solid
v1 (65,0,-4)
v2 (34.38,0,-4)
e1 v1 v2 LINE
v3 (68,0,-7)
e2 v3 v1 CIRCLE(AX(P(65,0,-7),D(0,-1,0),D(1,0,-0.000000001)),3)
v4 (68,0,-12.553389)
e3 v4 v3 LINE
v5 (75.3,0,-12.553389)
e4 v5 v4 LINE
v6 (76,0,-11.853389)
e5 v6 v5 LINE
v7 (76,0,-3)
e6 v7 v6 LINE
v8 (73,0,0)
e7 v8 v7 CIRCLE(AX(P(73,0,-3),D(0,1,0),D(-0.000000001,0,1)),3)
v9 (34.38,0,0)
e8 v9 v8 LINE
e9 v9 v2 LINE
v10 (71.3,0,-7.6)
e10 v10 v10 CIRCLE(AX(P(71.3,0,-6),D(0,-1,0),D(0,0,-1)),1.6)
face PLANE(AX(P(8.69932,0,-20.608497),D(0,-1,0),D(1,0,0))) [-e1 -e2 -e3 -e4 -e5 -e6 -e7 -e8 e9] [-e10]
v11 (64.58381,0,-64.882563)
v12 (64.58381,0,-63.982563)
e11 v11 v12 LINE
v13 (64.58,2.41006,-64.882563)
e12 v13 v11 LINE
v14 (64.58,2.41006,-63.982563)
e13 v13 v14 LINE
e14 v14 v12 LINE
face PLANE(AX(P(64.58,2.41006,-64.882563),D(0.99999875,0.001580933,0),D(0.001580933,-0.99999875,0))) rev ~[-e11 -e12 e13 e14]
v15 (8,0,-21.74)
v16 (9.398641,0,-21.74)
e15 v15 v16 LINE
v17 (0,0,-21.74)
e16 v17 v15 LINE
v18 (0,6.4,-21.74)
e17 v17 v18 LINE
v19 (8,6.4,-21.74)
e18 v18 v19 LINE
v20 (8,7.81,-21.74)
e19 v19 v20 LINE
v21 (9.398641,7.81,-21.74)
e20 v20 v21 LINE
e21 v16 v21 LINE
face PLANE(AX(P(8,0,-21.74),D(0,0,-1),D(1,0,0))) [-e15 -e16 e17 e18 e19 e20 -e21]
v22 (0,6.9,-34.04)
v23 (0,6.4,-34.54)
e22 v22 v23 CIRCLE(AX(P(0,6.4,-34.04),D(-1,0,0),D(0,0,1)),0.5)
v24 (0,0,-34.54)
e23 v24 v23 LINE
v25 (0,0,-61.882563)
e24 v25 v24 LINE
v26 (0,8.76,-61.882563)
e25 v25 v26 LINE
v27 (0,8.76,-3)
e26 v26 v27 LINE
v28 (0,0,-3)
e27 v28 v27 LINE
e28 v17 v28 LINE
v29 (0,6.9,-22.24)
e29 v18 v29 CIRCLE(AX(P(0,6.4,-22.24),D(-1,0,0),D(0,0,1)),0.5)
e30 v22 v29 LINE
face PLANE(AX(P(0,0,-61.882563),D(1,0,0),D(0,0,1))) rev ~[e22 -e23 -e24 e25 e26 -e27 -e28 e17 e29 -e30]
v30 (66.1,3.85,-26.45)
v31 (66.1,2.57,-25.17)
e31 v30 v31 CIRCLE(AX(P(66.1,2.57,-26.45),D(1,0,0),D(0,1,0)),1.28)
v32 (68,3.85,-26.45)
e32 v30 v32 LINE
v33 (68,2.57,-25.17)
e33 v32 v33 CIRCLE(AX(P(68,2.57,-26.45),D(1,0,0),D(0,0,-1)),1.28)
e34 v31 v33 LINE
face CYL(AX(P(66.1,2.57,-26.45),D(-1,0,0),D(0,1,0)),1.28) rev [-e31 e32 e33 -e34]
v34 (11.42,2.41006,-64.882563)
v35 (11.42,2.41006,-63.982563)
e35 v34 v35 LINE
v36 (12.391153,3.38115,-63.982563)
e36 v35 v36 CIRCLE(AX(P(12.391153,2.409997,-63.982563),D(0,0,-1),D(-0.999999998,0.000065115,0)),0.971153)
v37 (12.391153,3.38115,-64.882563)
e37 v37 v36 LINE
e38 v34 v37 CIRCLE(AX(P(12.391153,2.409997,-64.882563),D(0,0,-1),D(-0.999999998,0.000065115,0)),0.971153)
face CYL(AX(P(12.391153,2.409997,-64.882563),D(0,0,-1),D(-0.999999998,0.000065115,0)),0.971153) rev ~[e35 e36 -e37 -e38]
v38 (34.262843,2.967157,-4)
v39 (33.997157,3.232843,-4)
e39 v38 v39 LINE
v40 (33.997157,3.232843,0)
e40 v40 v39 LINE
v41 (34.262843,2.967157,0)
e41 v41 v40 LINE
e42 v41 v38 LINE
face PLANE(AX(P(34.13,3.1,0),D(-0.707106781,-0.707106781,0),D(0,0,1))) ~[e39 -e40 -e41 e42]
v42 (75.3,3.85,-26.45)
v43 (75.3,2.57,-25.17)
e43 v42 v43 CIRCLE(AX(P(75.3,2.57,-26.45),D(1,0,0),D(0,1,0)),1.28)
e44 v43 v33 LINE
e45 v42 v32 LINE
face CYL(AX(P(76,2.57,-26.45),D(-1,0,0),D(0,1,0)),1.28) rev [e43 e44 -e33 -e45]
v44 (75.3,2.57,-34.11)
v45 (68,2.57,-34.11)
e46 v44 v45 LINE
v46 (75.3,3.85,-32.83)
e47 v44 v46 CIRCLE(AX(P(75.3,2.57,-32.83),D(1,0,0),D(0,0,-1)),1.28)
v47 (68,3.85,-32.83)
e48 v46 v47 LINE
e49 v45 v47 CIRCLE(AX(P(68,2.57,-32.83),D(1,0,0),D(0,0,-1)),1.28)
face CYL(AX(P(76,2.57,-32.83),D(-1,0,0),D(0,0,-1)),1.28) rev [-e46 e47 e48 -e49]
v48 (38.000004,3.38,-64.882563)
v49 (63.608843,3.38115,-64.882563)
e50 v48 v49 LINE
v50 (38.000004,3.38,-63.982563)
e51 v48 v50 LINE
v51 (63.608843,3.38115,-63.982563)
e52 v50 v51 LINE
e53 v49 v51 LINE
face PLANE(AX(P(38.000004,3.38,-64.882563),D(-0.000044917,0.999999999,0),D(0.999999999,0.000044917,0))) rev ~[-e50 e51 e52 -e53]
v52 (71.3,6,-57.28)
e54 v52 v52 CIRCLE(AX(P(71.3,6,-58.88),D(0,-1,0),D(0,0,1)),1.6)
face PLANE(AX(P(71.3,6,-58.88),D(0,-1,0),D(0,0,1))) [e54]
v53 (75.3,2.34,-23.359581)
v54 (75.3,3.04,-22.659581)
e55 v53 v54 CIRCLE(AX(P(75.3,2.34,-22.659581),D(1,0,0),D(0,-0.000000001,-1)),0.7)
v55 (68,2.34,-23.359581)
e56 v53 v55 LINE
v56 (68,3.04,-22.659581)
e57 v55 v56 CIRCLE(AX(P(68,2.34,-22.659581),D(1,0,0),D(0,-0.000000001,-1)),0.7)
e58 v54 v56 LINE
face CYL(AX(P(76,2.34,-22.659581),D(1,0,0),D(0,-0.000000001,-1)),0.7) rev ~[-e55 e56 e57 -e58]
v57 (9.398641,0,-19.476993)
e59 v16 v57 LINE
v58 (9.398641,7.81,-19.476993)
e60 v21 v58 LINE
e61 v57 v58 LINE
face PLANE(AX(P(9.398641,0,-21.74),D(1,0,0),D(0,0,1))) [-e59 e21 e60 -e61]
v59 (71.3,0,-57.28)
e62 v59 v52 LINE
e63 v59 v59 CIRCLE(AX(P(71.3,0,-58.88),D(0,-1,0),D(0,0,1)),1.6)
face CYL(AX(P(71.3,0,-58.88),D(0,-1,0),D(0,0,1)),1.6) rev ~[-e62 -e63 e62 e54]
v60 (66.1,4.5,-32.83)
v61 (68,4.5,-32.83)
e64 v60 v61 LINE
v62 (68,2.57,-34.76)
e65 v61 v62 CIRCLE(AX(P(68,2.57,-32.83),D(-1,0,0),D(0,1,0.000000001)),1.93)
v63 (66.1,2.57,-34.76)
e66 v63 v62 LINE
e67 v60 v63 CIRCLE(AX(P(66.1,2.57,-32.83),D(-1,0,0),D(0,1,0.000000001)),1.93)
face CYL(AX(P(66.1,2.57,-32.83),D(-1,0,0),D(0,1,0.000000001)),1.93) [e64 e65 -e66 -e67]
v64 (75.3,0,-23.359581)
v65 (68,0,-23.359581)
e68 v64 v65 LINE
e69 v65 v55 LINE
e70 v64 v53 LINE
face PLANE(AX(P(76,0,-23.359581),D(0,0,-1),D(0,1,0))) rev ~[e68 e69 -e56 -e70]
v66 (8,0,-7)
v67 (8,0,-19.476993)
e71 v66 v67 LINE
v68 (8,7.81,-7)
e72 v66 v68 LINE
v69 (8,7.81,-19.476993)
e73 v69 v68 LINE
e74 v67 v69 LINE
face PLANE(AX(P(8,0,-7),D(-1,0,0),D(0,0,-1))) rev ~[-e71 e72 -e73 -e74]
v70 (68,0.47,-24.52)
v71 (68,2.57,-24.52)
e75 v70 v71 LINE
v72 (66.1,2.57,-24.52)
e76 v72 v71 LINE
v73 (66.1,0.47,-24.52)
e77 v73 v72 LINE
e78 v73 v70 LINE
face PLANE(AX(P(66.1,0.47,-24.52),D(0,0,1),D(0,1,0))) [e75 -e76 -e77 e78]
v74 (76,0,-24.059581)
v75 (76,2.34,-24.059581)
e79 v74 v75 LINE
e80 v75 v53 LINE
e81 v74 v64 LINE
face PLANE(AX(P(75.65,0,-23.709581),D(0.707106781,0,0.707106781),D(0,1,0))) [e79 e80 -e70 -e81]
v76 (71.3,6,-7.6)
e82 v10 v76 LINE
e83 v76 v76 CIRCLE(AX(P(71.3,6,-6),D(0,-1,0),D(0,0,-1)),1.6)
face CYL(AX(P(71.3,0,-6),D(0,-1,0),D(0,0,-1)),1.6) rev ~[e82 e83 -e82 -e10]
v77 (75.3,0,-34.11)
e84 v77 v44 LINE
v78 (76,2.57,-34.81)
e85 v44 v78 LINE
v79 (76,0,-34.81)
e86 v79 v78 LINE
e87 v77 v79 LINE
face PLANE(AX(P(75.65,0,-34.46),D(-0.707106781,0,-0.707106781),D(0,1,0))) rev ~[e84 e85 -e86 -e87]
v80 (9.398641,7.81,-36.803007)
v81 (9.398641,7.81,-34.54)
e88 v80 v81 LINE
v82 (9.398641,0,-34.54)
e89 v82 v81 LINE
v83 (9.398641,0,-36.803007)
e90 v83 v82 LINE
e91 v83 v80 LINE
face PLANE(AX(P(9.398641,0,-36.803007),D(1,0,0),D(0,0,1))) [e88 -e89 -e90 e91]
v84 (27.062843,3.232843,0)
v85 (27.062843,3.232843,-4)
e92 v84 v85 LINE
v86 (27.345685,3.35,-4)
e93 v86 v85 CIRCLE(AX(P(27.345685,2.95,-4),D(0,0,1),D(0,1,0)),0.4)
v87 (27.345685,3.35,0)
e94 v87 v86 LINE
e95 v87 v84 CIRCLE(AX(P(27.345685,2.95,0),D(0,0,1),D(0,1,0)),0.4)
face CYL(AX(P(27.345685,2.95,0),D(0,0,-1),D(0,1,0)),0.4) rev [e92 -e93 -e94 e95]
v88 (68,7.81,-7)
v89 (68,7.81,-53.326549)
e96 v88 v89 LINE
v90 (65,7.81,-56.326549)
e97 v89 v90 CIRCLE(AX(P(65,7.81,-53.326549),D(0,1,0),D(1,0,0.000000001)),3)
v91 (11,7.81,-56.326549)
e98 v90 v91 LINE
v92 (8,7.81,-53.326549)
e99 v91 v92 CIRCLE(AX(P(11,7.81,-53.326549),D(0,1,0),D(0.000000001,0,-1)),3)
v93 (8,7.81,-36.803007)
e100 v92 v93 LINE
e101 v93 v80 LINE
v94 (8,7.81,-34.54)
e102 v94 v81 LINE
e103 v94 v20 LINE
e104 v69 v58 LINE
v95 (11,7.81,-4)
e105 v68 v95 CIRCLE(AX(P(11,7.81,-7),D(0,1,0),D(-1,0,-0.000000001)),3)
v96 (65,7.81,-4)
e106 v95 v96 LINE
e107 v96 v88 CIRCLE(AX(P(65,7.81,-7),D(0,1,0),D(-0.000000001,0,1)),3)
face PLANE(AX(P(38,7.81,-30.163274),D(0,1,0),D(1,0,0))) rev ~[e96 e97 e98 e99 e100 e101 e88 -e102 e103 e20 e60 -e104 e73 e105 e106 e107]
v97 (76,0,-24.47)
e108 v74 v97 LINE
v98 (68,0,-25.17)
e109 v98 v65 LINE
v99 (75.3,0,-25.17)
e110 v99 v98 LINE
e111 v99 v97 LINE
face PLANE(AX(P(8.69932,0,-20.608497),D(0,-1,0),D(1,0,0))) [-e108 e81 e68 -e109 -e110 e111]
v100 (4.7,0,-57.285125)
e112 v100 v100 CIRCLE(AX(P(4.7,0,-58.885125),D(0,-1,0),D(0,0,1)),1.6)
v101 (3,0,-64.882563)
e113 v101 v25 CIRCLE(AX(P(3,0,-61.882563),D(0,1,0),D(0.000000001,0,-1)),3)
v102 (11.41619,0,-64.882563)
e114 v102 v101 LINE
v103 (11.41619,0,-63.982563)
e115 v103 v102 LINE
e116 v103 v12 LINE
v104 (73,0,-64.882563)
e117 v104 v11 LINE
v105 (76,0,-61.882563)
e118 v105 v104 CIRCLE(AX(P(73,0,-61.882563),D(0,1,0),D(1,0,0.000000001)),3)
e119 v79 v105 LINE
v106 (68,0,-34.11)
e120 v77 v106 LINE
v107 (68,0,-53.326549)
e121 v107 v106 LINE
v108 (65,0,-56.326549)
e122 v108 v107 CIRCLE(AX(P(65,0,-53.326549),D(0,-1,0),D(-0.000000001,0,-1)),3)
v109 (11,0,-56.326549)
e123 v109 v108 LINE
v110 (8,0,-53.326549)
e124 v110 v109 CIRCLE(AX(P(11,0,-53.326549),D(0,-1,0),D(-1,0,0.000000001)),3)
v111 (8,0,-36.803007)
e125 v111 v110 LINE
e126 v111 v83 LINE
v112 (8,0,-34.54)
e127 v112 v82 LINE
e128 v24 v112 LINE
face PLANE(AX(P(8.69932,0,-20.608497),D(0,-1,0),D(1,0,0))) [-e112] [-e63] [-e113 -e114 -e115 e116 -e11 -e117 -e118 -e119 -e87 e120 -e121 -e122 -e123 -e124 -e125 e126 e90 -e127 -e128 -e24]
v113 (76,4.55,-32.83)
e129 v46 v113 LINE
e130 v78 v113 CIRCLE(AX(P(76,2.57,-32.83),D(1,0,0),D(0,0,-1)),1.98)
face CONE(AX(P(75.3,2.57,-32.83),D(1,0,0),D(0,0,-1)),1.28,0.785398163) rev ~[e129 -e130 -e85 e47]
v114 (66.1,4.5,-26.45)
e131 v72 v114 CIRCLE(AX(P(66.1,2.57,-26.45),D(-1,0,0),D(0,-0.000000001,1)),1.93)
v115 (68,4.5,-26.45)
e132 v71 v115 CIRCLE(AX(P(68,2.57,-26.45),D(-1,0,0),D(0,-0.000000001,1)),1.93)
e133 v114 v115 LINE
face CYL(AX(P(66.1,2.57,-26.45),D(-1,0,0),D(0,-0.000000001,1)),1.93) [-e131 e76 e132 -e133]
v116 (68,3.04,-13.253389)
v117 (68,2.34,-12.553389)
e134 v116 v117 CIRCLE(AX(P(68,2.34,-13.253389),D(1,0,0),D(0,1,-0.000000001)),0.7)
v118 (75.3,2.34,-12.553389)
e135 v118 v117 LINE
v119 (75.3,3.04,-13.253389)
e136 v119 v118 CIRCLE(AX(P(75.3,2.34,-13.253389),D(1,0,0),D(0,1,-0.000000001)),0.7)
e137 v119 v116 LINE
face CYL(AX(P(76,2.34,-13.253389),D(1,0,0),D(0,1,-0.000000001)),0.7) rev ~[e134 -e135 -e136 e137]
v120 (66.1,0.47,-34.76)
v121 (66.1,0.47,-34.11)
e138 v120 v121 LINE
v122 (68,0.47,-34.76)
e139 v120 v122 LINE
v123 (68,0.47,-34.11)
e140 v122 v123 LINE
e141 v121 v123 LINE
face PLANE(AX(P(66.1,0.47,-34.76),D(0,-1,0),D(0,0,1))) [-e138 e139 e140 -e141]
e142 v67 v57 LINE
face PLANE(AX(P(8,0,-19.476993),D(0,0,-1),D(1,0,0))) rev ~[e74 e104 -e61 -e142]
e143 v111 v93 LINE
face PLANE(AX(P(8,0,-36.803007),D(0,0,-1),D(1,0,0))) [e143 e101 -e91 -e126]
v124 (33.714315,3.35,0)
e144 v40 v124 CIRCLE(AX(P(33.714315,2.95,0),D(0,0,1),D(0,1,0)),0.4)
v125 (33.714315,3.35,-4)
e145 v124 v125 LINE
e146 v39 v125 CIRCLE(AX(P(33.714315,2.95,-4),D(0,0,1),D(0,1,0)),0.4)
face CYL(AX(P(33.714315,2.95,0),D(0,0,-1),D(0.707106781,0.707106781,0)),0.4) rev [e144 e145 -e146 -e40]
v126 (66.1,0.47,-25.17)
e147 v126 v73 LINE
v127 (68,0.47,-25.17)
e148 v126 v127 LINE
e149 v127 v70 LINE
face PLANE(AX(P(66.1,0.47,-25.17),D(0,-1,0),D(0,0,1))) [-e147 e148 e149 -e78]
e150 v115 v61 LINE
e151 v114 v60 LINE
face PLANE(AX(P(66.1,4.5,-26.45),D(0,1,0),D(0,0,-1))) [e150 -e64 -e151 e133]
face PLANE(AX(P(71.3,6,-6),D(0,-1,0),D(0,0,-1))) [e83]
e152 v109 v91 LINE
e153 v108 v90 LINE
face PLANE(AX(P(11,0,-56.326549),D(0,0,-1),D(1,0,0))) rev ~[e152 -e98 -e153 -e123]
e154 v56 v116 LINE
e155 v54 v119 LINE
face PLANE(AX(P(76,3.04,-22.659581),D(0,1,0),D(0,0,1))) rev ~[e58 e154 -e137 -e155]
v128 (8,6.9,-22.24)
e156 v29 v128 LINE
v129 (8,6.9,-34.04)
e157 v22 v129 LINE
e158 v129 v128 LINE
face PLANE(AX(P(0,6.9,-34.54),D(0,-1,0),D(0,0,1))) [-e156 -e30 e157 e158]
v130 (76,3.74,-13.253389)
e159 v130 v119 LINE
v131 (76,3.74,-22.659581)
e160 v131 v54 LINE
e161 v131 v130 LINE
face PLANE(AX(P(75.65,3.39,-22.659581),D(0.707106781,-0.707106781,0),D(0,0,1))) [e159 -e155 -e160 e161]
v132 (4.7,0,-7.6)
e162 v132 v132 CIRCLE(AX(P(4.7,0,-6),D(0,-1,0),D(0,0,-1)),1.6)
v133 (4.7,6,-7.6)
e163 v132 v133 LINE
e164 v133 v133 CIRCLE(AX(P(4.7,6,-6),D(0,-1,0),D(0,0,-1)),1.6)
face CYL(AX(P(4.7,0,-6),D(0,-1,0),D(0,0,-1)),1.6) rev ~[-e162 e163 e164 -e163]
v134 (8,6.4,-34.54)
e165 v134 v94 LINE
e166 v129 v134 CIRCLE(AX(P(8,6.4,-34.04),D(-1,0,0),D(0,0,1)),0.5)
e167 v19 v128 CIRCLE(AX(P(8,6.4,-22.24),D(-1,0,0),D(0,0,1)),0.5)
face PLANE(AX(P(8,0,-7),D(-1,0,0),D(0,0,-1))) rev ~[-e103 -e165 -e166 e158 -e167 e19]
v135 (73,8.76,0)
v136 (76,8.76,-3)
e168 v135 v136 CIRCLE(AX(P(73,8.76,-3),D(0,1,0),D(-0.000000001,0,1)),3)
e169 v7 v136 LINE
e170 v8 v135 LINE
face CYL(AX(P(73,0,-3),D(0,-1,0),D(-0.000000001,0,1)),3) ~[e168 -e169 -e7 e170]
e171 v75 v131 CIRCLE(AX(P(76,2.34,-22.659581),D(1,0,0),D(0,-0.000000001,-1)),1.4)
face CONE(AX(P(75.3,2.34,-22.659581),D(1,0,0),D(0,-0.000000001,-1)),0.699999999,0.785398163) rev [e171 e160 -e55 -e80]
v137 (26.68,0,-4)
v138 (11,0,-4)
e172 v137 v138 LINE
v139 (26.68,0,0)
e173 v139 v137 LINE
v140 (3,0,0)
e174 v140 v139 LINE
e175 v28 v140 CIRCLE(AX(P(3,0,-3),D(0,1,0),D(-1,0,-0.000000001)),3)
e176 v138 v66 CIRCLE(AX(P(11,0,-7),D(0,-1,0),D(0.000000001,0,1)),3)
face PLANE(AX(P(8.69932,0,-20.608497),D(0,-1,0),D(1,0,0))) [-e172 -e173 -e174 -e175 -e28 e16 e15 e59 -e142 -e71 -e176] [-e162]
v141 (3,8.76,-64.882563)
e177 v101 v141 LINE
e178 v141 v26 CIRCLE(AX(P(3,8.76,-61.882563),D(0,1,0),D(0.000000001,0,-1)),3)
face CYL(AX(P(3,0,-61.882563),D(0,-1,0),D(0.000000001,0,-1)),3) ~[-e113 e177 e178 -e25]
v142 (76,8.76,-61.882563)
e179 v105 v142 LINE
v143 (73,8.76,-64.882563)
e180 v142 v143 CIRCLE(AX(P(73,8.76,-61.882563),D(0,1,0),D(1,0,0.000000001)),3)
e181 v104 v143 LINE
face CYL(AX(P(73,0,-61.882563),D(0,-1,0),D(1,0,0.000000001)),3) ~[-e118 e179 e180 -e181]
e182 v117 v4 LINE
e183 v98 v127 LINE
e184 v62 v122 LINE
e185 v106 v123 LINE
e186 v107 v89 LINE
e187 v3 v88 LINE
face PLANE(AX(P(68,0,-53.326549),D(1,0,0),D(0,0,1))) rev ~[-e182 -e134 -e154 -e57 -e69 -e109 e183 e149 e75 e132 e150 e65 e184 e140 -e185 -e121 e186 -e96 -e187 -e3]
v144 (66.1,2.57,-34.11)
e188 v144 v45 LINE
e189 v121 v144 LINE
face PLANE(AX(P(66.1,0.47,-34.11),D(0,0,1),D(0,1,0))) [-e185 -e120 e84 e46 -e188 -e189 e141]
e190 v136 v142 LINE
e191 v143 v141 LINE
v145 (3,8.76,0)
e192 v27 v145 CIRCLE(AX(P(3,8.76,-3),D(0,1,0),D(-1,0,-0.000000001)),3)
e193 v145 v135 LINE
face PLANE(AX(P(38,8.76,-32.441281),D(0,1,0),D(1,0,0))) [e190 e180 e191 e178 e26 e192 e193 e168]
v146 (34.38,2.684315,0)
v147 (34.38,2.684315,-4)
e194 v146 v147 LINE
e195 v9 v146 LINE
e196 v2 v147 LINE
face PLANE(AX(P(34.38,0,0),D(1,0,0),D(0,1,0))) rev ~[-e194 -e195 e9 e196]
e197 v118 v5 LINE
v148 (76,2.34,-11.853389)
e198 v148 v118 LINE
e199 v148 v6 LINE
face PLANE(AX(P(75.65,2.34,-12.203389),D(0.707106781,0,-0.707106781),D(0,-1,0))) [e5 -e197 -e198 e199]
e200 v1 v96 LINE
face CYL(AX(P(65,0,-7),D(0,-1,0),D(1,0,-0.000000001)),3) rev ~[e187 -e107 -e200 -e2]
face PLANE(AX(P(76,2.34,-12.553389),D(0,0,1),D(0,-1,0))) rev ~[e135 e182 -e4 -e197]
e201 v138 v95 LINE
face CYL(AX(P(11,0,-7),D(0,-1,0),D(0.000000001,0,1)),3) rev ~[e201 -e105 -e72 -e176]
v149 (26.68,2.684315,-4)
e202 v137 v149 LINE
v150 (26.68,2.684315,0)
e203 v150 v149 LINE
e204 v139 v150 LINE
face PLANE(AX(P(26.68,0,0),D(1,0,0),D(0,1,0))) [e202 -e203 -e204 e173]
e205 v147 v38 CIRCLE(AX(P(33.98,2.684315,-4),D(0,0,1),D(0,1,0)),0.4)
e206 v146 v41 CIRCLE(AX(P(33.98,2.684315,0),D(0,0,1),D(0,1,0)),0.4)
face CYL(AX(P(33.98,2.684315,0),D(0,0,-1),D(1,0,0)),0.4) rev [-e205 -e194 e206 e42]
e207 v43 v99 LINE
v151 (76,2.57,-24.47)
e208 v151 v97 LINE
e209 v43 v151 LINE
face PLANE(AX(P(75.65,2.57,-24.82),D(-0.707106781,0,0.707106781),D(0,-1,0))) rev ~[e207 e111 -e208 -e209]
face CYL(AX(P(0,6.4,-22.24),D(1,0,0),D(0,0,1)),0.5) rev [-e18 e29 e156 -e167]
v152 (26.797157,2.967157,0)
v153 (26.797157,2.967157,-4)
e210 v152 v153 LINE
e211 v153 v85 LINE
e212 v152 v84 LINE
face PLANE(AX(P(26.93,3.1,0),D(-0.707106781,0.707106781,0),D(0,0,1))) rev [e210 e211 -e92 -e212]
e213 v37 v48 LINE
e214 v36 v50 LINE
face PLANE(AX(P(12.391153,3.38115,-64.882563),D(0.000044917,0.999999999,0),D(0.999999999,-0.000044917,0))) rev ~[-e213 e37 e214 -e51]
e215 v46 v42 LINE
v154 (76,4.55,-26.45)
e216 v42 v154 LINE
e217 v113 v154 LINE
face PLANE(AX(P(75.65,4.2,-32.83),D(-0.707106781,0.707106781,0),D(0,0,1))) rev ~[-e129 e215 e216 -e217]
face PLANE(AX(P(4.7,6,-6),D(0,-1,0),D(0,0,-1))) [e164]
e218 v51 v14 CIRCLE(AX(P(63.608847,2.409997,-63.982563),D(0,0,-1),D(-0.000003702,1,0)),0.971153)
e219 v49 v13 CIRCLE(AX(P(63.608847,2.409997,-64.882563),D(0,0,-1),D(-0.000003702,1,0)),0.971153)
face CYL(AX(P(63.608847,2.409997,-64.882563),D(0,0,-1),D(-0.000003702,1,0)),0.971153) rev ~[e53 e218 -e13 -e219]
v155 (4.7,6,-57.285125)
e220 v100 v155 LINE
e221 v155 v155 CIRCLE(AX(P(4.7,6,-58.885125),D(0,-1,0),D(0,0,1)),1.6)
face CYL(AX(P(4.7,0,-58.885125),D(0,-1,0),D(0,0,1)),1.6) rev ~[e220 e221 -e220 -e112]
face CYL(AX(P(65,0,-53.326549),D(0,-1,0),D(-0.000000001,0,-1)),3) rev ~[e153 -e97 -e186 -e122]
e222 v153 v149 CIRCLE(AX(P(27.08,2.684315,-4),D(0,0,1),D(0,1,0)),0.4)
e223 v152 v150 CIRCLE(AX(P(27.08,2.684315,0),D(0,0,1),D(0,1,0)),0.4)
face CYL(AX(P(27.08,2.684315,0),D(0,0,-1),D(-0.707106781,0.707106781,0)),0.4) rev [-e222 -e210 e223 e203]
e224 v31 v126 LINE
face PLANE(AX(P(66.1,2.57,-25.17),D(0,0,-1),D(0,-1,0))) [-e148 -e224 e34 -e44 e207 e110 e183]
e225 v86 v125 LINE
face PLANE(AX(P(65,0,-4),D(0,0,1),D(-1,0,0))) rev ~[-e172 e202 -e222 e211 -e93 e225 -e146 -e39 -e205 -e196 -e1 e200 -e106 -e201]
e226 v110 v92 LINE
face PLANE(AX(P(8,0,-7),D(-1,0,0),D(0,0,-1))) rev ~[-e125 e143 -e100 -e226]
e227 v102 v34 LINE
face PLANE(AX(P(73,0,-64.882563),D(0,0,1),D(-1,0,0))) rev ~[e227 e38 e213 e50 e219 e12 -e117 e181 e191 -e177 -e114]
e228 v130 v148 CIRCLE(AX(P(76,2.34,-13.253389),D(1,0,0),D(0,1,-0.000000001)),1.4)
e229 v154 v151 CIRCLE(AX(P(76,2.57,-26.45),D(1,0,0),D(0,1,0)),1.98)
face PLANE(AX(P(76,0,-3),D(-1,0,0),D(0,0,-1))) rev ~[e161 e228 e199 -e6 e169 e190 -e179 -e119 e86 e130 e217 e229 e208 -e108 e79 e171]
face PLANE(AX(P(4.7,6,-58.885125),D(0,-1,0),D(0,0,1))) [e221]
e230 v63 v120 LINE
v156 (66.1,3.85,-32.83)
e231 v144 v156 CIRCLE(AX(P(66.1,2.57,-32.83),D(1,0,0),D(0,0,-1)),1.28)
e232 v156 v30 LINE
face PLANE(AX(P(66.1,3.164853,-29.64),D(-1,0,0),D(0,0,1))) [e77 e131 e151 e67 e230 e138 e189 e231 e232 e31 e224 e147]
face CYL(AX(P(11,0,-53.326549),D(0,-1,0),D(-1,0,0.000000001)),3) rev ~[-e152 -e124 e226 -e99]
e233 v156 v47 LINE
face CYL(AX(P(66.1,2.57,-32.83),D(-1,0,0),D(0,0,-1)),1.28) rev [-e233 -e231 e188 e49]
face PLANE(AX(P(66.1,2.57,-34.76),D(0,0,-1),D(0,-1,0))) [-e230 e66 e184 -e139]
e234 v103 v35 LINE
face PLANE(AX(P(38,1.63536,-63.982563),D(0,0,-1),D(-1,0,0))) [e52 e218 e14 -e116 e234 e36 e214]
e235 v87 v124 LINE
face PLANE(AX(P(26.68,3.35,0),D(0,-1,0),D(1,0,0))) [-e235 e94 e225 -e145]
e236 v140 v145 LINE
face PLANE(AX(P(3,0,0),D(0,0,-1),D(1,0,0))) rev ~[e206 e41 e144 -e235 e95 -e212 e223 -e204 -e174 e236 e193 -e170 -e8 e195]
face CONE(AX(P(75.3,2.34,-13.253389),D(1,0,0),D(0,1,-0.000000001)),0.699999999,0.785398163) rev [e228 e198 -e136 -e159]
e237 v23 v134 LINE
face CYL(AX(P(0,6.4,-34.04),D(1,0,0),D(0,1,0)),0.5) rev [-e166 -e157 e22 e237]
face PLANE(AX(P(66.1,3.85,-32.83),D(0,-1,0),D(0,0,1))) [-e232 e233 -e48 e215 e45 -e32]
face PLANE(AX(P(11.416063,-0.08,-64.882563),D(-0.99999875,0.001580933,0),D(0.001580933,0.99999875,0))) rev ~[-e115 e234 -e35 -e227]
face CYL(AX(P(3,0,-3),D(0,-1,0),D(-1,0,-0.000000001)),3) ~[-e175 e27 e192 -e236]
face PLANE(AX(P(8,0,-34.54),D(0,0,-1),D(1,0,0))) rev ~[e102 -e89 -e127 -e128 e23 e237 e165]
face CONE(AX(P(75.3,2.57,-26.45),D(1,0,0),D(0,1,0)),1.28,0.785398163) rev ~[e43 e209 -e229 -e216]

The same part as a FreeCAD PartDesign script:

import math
import FreeCAD as App
import Part
import Sketcher
Q = App.Units.Quantity


def edges_at(feature, points):
    """Names of the edges that pass closest to the given points."""
    edges = feature.Shape.Edges
    near = lambda p: min(range(len(edges)), key=lambda i: edges[i].distToShape(Part.Vertex(*p))[0])
    return sorted({f"Edge{near(p) + 1}" for p in points})


def add_polygon(sketch, points):
    """Adds a closed chain of lines whose ends are joined by coincident constraints."""
    first, n = sketch.GeometryCount, len(points)
    for a, b in zip(points, points[1:] + points[:1]):
        sketch.addGeometry(Part.LineSegment(App.Vector(*a, 0), App.Vector(*b, 0)), False)
    for i in range(n):
        sketch.addConstraint(Sketcher.Constraint("Coincident", first + i, 2, first + (i + 1) % n, 1))

doc = App.newDocument("Part")
body = doc.addObject("PartDesign::Body", "Body")

sketch1 = body.newObject("Sketcher::SketchObject", "Sketch")
sketch1.AttachmentSupport = (doc.getObject("XZ_Plane"), [""])
sketch1.MapMode = "FlatFace"
sketch1.addGeometry([
    Part.ArcOfCircle(Part.Circle(App.Vector(3, -3, 0), App.Vector(0, 0, 1), 3), math.radians(90), math.radians(180)),
    Part.LineSegment(App.Vector(3, 0, 0), App.Vector(73, 0, 0)),
    Part.ArcOfCircle(Part.Circle(App.Vector(73, -3, 0), App.Vector(0, 0, 1), 3), math.radians(0), math.radians(90)),
    Part.LineSegment(App.Vector(76, -3, 0), App.Vector(76, -61.9, 0)),
    Part.ArcOfCircle(Part.Circle(App.Vector(73, -61.9, 0), App.Vector(0, 0, 1), 3), math.radians(-90), math.radians(0)),
    Part.LineSegment(App.Vector(73, -64.9, 0), App.Vector(3, -64.9, 0)),
    Part.ArcOfCircle(Part.Circle(App.Vector(3, -61.9, 0), App.Vector(0, 0, 1), 3), math.radians(180), math.radians(270)),
    Part.LineSegment(App.Vector(0, -61.9, 0), App.Vector(0, -3, 0)),
    Part.ArcOfCircle(Part.Circle(App.Vector(65, -7, 0), App.Vector(0, 0, 1), 3), math.radians(0), math.radians(90)),
    Part.LineSegment(App.Vector(65, -4, 0), App.Vector(11, -4, 0)),
    Part.ArcOfCircle(Part.Circle(App.Vector(11, -7, 0), App.Vector(0, 0, 1), 3), math.radians(90), math.radians(180)),
    Part.LineSegment(App.Vector(8, -7, 0), App.Vector(8, -53.3, 0)),
    Part.ArcOfCircle(Part.Circle(App.Vector(11, -53.3, 0), App.Vector(0, 0, 1), 3), math.radians(180), math.radians(270)),
    Part.LineSegment(App.Vector(11, -56.3, 0), App.Vector(65, -56.3, 0)),
    Part.ArcOfCircle(Part.Circle(App.Vector(65, -53.3, 0), App.Vector(0, 0, 1), 3), math.radians(-90), math.radians(0)),
    Part.LineSegment(App.Vector(68, -53.3, 0), App.Vector(68, -7, 0)),
], False)
sketch1.addConstraint([
    Sketcher.Constraint("Tangent", 0, 1, 1, 1),
    Sketcher.Constraint("Tangent", 1, 2, 2, 2),
    Sketcher.Constraint("Tangent", 2, 1, 3, 1),
    Sketcher.Constraint("Tangent", 3, 2, 4, 2),
    Sketcher.Constraint("Tangent", 4, 1, 5, 1),
    Sketcher.Constraint("Tangent", 5, 2, 6, 2),
    Sketcher.Constraint("Tangent", 6, 1, 7, 1),
    Sketcher.Constraint("Tangent", 7, 2, 0, 2),
    Sketcher.Constraint("Tangent", 8, 2, 9, 1),
    Sketcher.Constraint("Tangent", 9, 2, 10, 1),
    Sketcher.Constraint("Tangent", 10, 2, 11, 1),
    Sketcher.Constraint("Tangent", 11, 2, 12, 1),
    Sketcher.Constraint("Tangent", 12, 2, 13, 1),
    Sketcher.Constraint("Tangent", 13, 2, 14, 1),
    Sketcher.Constraint("Tangent", 14, 2, 15, 1),
    Sketcher.Constraint("Tangent", 15, 2, 8, 1),
    Sketcher.Constraint("Horizontal", 1),
    Sketcher.Constraint("Vertical", 3),
    Sketcher.Constraint("Horizontal", 5),
    Sketcher.Constraint("Vertical", 7),
    Sketcher.Constraint("Horizontal", 9),
    Sketcher.Constraint("Vertical", 11),
    Sketcher.Constraint("Horizontal", 13),
    Sketcher.Constraint("Vertical", 15),
    Sketcher.Constraint("Equal", 0, 2),
    Sketcher.Constraint("Equal", 2, 4),
    Sketcher.Constraint("Equal", 4, 6),
    Sketcher.Constraint("Equal", 6, 8),
    Sketcher.Constraint("Equal", 8, 10),
    Sketcher.Constraint("Equal", 10, 12),
    Sketcher.Constraint("Equal", 12, 14),
    Sketcher.Constraint("PointOnObject", 0, 1, -1),
    Sketcher.Constraint("PointOnObject", 6, 1, -2),
    Sketcher.Constraint("Radius", 0, Q("3 mm")),
    Sketcher.Constraint("DistanceX", 1, 1, 1, 2, Q("70 mm")),
    Sketcher.Constraint("DistanceX", 9, 2, 9, 1, Q("54 mm")),
    Sketcher.Constraint("DistanceX", -1, 1, 8, 3, Q("65 mm")),
    Sketcher.Constraint("DistanceY", 8, 3, -1, 1, Q("7 mm")),
    Sketcher.Constraint("DistanceY", 11, 2, 11, 1, Q("46.326549 mm")),
    Sketcher.Constraint("DistanceY", 3, 2, 3, 1, Q("58.882563 mm")),
])
pad1 = body.newObject("PartDesign::Pad", "Pad")
pad1.Profile = sketch1
pad1.Length = 8.76
pad1.Reversed = True

sketch2 = body.newObject("Sketcher::SketchObject", "Sketch001")
sketch2.AttachmentSupport = (doc.getObject("XZ_Plane"), [""])
sketch2.MapMode = "FlatFace"
sketch2.AttachmentOffset = App.Placement(App.Vector(0, 0, -7.81), App.Rotation())
sketch2.addGeometry([
    Part.ArcOfCircle(Part.Circle(App.Vector(11, -7, 0), App.Vector(0, 0, 1), 3), math.radians(90), math.radians(180)),
    Part.LineSegment(App.Vector(11, -4, 0), App.Vector(65, -4, 0)),
    Part.ArcOfCircle(Part.Circle(App.Vector(65, -7, 0), App.Vector(0, 0, 1), 3), math.radians(0), math.radians(90)),
    Part.LineSegment(App.Vector(68, -7, 0), App.Vector(68, -53.3, 0)),
    Part.ArcOfCircle(Part.Circle(App.Vector(65, -53.3, 0), App.Vector(0, 0, 1), 3), math.radians(-90), math.radians(0)),
    Part.LineSegment(App.Vector(65, -56.3, 0), App.Vector(11, -56.3, 0)),
    Part.ArcOfCircle(Part.Circle(App.Vector(11, -53.3, 0), App.Vector(0, 0, 1), 3), math.radians(180), math.radians(270)),
    Part.LineSegment(App.Vector(8, -53.3, 0), App.Vector(8, -7, 0)),
], False)
sketch2.addConstraint([
    Sketcher.Constraint("Tangent", 0, 1, 1, 1),
    Sketcher.Constraint("Tangent", 1, 2, 2, 2),
    Sketcher.Constraint("Tangent", 2, 1, 3, 1),
    Sketcher.Constraint("Tangent", 3, 2, 4, 2),
    Sketcher.Constraint("Tangent", 4, 1, 5, 1),
    Sketcher.Constraint("Tangent", 5, 2, 6, 2),
    Sketcher.Constraint("Tangent", 6, 1, 7, 1),
    Sketcher.Constraint("Tangent", 7, 2, 0, 2),
    Sketcher.Constraint("Horizontal", 1),
    Sketcher.Constraint("Vertical", 3),
    Sketcher.Constraint("Horizontal", 5),
    Sketcher.Constraint("Vertical", 7),
    Sketcher.Constraint("Equal", 0, 2),
    Sketcher.Constraint("Equal", 2, 4),
    Sketcher.Constraint("Equal", 4, 6),
    Sketcher.Constraint("Radius", 0, Q("3 mm")),
    Sketcher.Constraint("DistanceX", 1, 1, 1, 2, Q("54 mm")),
    Sketcher.Constraint("DistanceX", -1, 1, 0, 3, Q("11 mm")),
    Sketcher.Constraint("DistanceY", 0, 3, -1, 1, Q("7 mm")),
    Sketcher.Constraint("DistanceY", 3, 2, 3, 1, Q("46.326549 mm")),
])
pad2 = body.newObject("PartDesign::Pad", "Pad001")
pad2.Profile = sketch2
pad2.Length = 0.95
pad2.Reversed = True

sketch3 = body.newObject("Sketcher::SketchObject", "Sketch002")
sketch3.AttachmentSupport = (doc.getObject("YZ_Plane"), [""])
sketch3.MapMode = "FlatFace"
add_polygon(sketch3, [(7, -35), (0, -35), (0, -22), (7, -22)])
sketch3.addConstraint([
    Sketcher.Constraint("Horizontal", 0),
    Sketcher.Constraint("Vertical", 1),
    Sketcher.Constraint("Horizontal", 2),
    Sketcher.Constraint("Vertical", 3),
    Sketcher.Constraint("PointOnObject", 0, 2, -2),
    Sketcher.Constraint("DistanceX", 0, 2, 0, 1, Q("6.9 mm")),
    Sketcher.Constraint("DistanceY", 1, 1, 1, 2, Q("12.8 mm")),
    Sketcher.Constraint("DistanceY", 0, 2, -1, 1, Q("34.54 mm")),
])
pocket1 = body.newObject("PartDesign::Pocket", "Pocket")
pocket1.Profile = sketch3
pocket1.Length = 8
pocket1.Reversed = True

sketch4 = body.newObject("Sketcher::SketchObject", "Sketch003")
sketch4.AttachmentSupport = (doc.getObject("XZ_Plane"), [""])
sketch4.MapMode = "FlatFace"
add_polygon(sketch4, [(8, -19.5), (8, -21.7), (9.4, -21.7), (9.4, -19.5)])
add_polygon(sketch4, [(8, -34.5), (8, -36.8), (9.4, -36.8), (9.4, -34.5)])
sketch4.addConstraint([
    Sketcher.Constraint("Vertical", 0),
    Sketcher.Constraint("Horizontal", 1),
    Sketcher.Constraint("Vertical", 2),
    Sketcher.Constraint("Horizontal", 3),
    Sketcher.Constraint("Vertical", 4),
    Sketcher.Constraint("Horizontal", 5),
    Sketcher.Constraint("Vertical", 6),
    Sketcher.Constraint("Horizontal", 7),
    Sketcher.Constraint("Vertical", 3, 2, 4, 2),
    Sketcher.Constraint("Vertical", 2, 2, 5, 2),
    Sketcher.Constraint("Equal", 2, 4),
    Sketcher.Constraint("DistanceX", -1, 1, 0, 2, Q("8 mm")),
    Sketcher.Constraint("DistanceY", 6, 2, 1, 2, Q("12.8 mm")),
    Sketcher.Constraint("DistanceY", 0, 2, -1, 1, Q("21.74 mm")),
    Sketcher.Constraint("DistanceX", 1, 1, 1, 2, Q("1.398641 mm")),
    Sketcher.Constraint("DistanceY", 0, 2, 0, 1, Q("2.263007 mm")),
])
pad3 = body.newObject("PartDesign::Pad", "Pad002")
pad3.Profile = sketch4
pad3.Length = 7.81
pad3.Reversed = True

sketch5 = body.newObject("Sketcher::SketchObject", "Sketch004")
sketch5.AttachmentSupport = (doc.getObject("YZ_Plane"), [""])
sketch5.MapMode = "FlatFace"
sketch5.AttachmentOffset = App.Placement(App.Vector(0, 0, 76), App.Rotation())
sketch5.addGeometry([
    Part.LineSegment(App.Vector(2.3, -12.6, 0), App.Vector(0, -12.6, 0)),
    Part.LineSegment(App.Vector(0, -12.6, 0), App.Vector(0, -23.4, 0)),
    Part.LineSegment(App.Vector(0, -23.4, 0), App.Vector(2.3, -23.4, 0)),
    Part.ArcOfCircle(Part.Circle(App.Vector(2.3, -22.7, 0), App.Vector(0, 0, 1), 0.7), math.radians(-90), math.radians(0)),
    Part.LineSegment(App.Vector(3, -22.7, 0), App.Vector(3, -13.3, 0)),
    Part.ArcOfCircle(Part.Circle(App.Vector(2.3, -13.3, 0), App.Vector(0, 0, 1), 0.7), math.radians(0), math.radians(90)),
], False)
sketch5.addConstraint([
    Sketcher.Constraint("Coincident", 0, 2, 1, 1),
    Sketcher.Constraint("Coincident", 1, 2, 2, 1),
    Sketcher.Constraint("Tangent", 2, 2, 3, 1),
    Sketcher.Constraint("Tangent", 3, 2, 4, 1),
    Sketcher.Constraint("Tangent", 4, 2, 5, 1),
    Sketcher.Constraint("Tangent", 5, 2, 0, 1),
    Sketcher.Constraint("Horizontal", 0),
    Sketcher.Constraint("Vertical", 1),
    Sketcher.Constraint("Horizontal", 2),
    Sketcher.Constraint("Vertical", 4),
    Sketcher.Constraint("Equal", 3, 5),
    Sketcher.Constraint("PointOnObject", 0, 2, -2),
    Sketcher.Constraint("Radius", 3, Q("0.7 mm")),
    Sketcher.Constraint("DistanceX", 0, 2, 0, 1, Q("2.34 mm")),
    Sketcher.Constraint("DistanceY", 1, 2, 1, 1, Q("10.806192 mm")),
    Sketcher.Constraint("DistanceY", 3, 3, -1, 1, Q("22.659581 mm")),
])
pocket2 = body.newObject("PartDesign::Pocket", "Pocket001")
pocket2.Profile = sketch5
pocket2.Length = 8
doc.recompute()

fillet = body.newObject("PartDesign::Fillet", "Fillet")
fillet.Base = (pocket2, edges_at(pocket2, [(4, 6.9, -34.54), (4, 6.9, -21.74)]))
fillet.Radius = 0.5

sketch6 = body.newObject("Sketcher::SketchObject", "Sketch005")
sketch6.AttachmentSupport = (doc.getObject("YZ_Plane"), [""])
sketch6.MapMode = "FlatFace"
sketch6.AttachmentOffset = App.Placement(App.Vector(0, 0, 76), App.Rotation())
add_polygon(sketch6, [(3.9, -25.2), (0, -25.2), (0, -34.1), (3.9, -34.1)])
sketch6.addConstraint([
    Sketcher.Constraint("Horizontal", 0),
    Sketcher.Constraint("Vertical", 1),
    Sketcher.Constraint("Horizontal", 2),
    Sketcher.Constraint("Vertical", 3),
    Sketcher.Constraint("PointOnObject", 0, 2, -2),
    Sketcher.Constraint("DistanceX", 0, 2, 0, 1, Q("3.85 mm")),
    Sketcher.Constraint("DistanceY", 1, 2, 1, 1, Q("8.94 mm")),
    Sketcher.Constraint("DistanceY", 0, 2, -1, 1, Q("25.17 mm")),
])
pocket3 = body.newObject("PartDesign::Pocket", "Pocket002")
pocket3.Profile = sketch6
pocket3.Length = 8
doc.recompute()

fillet2 = body.newObject("PartDesign::Fillet", "Fillet001")
fillet2.Base = (pocket3, edges_at(pocket3, [(72, 3.85, -34.11), (72, 3.85, -25.17)]))
fillet2.Radius = 1.28

sketch7 = body.newObject("Sketcher::SketchObject", "Sketch006")
sketch7.AttachmentSupport = (doc.getObject("YZ_Plane"), [""])
sketch7.MapMode = "FlatFace"
sketch7.AttachmentOffset = App.Placement(App.Vector(0, 0, 66.1), App.Rotation())
sketch7.addGeometry([
    Part.LineSegment(App.Vector(0.5, -34.1, 0), App.Vector(2.6, -34.1, 0)),
    Part.ArcOfCircle(Part.Circle(App.Vector(2.6, -32.8, 0), App.Vector(0, 0, 1), 1.3), math.radians(-90), math.radians(0)),
    Part.LineSegment(App.Vector(3.9, -32.8, 0), App.Vector(3.9, -26.4, 0)),
    Part.ArcOfCircle(Part.Circle(App.Vector(2.6, -26.4, 0), App.Vector(0, 0, 1), 1.3), math.radians(0), math.radians(90)),
    Part.LineSegment(App.Vector(2.6, -25.2, 0), App.Vector(0.5, -25.2, 0)),
    Part.LineSegment(App.Vector(0.5, -25.2, 0), App.Vector(0.5, -24.5, 0)),
    Part.LineSegment(App.Vector(0.5, -24.5, 0), App.Vector(2.6, -24.5, 0)),
    Part.ArcOfCircle(Part.Circle(App.Vector(2.6, -26.4, 0), App.Vector(0, 0, 1), 1.9), math.radians(0), math.radians(90)),
    Part.LineSegment(App.Vector(4.5, -26.4, 0), App.Vector(4.5, -32.8, 0)),
    Part.ArcOfCircle(Part.Circle(App.Vector(2.6, -32.8, 0), App.Vector(0, 0, 1), 1.9), math.radians(-90), math.radians(0)),
    Part.LineSegment(App.Vector(2.6, -34.8, 0), App.Vector(0.5, -34.8, 0)),
    Part.LineSegment(App.Vector(0.5, -34.8, 0), App.Vector(0.5, -34.1, 0)),
], False)
sketch7.addConstraint([
    Sketcher.Constraint("Tangent", 0, 2, 1, 1),
    Sketcher.Constraint("Tangent", 1, 2, 2, 1),
    Sketcher.Constraint("Tangent", 2, 2, 3, 1),
    Sketcher.Constraint("Tangent", 3, 2, 4, 1),
    Sketcher.Constraint("Coincident", 4, 2, 5, 1),
    Sketcher.Constraint("Coincident", 5, 2, 6, 1),
    Sketcher.Constraint("Tangent", 6, 2, 7, 2),
    Sketcher.Constraint("Tangent", 7, 1, 8, 1),
    Sketcher.Constraint("Tangent", 8, 2, 9, 2),
    Sketcher.Constraint("Tangent", 9, 1, 10, 1),
    Sketcher.Constraint("Coincident", 10, 2, 11, 1),
    Sketcher.Constraint("Coincident", 11, 2, 0, 1),
    Sketcher.Constraint("Horizontal", 0),
    Sketcher.Constraint("Vertical", 2),
    Sketcher.Constraint("Horizontal", 4),
    Sketcher.Constraint("Vertical", 5),
    Sketcher.Constraint("Horizontal", 6),
    Sketcher.Constraint("Vertical", 8),
    Sketcher.Constraint("Horizontal", 10),
    Sketcher.Constraint("Vertical", 11),
    Sketcher.Constraint("Coincident", 7, 3, 3, 3),
    Sketcher.Constraint("Coincident", 9, 3, 1, 3),
    Sketcher.Constraint("Equal", 1, 3),
    Sketcher.Constraint("Vertical", 5, 2, 10, 2),
    Sketcher.Constraint("Radius", 1, Q("1.28 mm")),
    Sketcher.Constraint("Radius", 7, Q("1.93 mm")),
    Sketcher.Constraint("DistanceX", 0, 1, 0, 2, Q("2.1 mm")),
    Sketcher.Constraint("DistanceY", 2, 1, 2, 2, Q("6.38 mm")),
    Sketcher.Constraint("DistanceX", -1, 1, 7, 1, Q("4.5 mm")),
    Sketcher.Constraint("DistanceY", 1, 3, -1, 1, Q("32.83 mm")),
])
pad4 = body.newObject("PartDesign::Pad", "Pad003")
pad4.Profile = sketch7
pad4.Length = 1.9
doc.recompute()

chamfer = body.newObject("PartDesign::Chamfer", "Chamfer")
chamfer.Base = (pad4, edges_at(pad4, [
    (76, 1.17, -23.36),
    (76, 2.835, -23.155),
    (76, 3.04, -17.956),
    (76, 2.835, -12.758),
    (76, 1.17, -12.553),
    (76, 1.285, -34.11),
    (76, 3.85, -29.64),
    (76, 1.285, -25.17),
    (76, 3.475, -33.735),
    (76, 3.475, -25.545),
]))
chamfer.Size = 0.7

sketch8 = body.newObject("Sketcher::SketchObject", "Sketch007")
sketch8.AttachmentSupport = (doc.getObject("XZ_Plane"), [""])
sketch8.MapMode = "FlatFace"
sketch8.addGeometry([
    Part.Circle(App.Vector(4.7, -6, 0), App.Vector(0, 0, 1), 1.6),
    Part.Circle(App.Vector(4.7, -58.9, 0), App.Vector(0, 0, 1), 1.6),
], False)
sketch8.addConstraint([
    Sketcher.Constraint("Equal", 0, 1),
    Sketcher.Constraint("Vertical", 0, 3, 1, 3),
    Sketcher.Constraint("Diameter", 0, Q("3.2 mm")),
    Sketcher.Constraint("DistanceY", 0, 3, -1, 1, Q("6 mm")),
    Sketcher.Constraint("DistanceX", -1, 1, 0, 3, Q("4.7 mm")),
    Sketcher.Constraint("DistanceY", 1, 3, -1, 1, Q("58.885125 mm")),
])
pocket4 = body.newObject("PartDesign::Pocket", "Pocket003")
pocket4.Profile = sketch8
pocket4.Length = 6

sketch9 = body.newObject("Sketcher::SketchObject", "Sketch008")
sketch9.AttachmentSupport = (doc.getObject("XZ_Plane"), [""])
sketch9.MapMode = "FlatFace"
sketch9.addGeometry([
    Part.Circle(App.Vector(71.3, -6, 0), App.Vector(0, 0, 1), 1.6),
    Part.Circle(App.Vector(71.3, -58.9, 0), App.Vector(0, 0, 1), 1.6),
], False)
sketch9.addConstraint([
    Sketcher.Constraint("Equal", 0, 1),
    Sketcher.Constraint("Vertical", 0, 3, 1, 3),
    Sketcher.Constraint("Diameter", 0, Q("3.2 mm")),
    Sketcher.Constraint("DistanceY", 0, 3, -1, 1, Q("6 mm")),
    Sketcher.Constraint("DistanceX", -1, 1, 0, 3, Q("71.3 mm")),
    Sketcher.Constraint("DistanceY", 1, 3, -1, 1, Q("58.88 mm")),
])
pocket5 = body.newObject("PartDesign::Pocket", "Pocket004")
pocket5.Profile = sketch9
pocket5.Length = 6

sketch10 = body.newObject("Sketcher::SketchObject", "Sketch009")
sketch10.AttachmentSupport = (doc.getObject("XY_Plane"), [""])
sketch10.MapMode = "FlatFace"
sketch10.AttachmentOffset = App.Placement(App.Vector(0, 0, -64.882563), App.Rotation())
sketch10.addGeometry([
    Part.LineSegment(App.Vector(64.6, -0.1, 0), App.Vector(11.4, -0.1, 0)),
    Part.LineSegment(App.Vector(11.4, -0.1, 0), App.Vector(11.4, 2.4, 0)),
    Part.ArcOfCircle(Part.Circle(App.Vector(12.4, 2.4, 0), App.Vector(0, 0, 1), 1), math.radians(90), math.radians(180)),
    Part.LineSegment(App.Vector(12.4, 3.4, 0), App.Vector(38, 3.4, 0)),
    Part.LineSegment(App.Vector(38, 3.4, 0), App.Vector(63.6, 3.4, 0)),
    Part.ArcOfCircle(Part.Circle(App.Vector(63.6, 2.4, 0), App.Vector(0, 0, 1), 1), math.radians(0), math.radians(90)),
    Part.LineSegment(App.Vector(64.6, 2.4, 0), App.Vector(64.6, -0.1, 0)),
], False)
sketch10.addConstraint([
    Sketcher.Constraint("Coincident", 0, 2, 1, 1),
    Sketcher.Constraint("Coincident", 1, 2, 2, 2),
    Sketcher.Constraint("Coincident", 2, 1, 3, 1),
    Sketcher.Constraint("Coincident", 3, 2, 4, 1),
    Sketcher.Constraint("Coincident", 4, 2, 5, 2),
    Sketcher.Constraint("Coincident", 5, 1, 6, 1),
    Sketcher.Constraint("Coincident", 6, 2, 0, 1),
    Sketcher.Constraint("Horizontal", 0),
    Sketcher.Constraint("Equal", 2, 5),
    Sketcher.Constraint("Horizontal", 2, 3, 5, 3),
    Sketcher.Constraint("Horizontal", 1, 2, 5, 1),
    Sketcher.Constraint("DistanceY", 0, 2, -1, 1, Q("0.08 mm")),
    Sketcher.Constraint("DistanceX", -1, 1, 1, 2, Q("11.42 mm")),
    Sketcher.Constraint("DistanceY", -1, 1, 3, 2, Q("3.38 mm")),
    Sketcher.Constraint("DistanceX", -1, 1, 5, 1, Q("64.58 mm")),
    Sketcher.Constraint("Radius", 2, Q("0.971153 mm")),
    Sketcher.Constraint("Distance", 3, Q("25.60885 mm")),
    Sketcher.Constraint("Distance", 4, Q("25.60884 mm")),
    Sketcher.Constraint("DistanceX", 0, 2, 0, 1, Q("53.167873 mm")),
    Sketcher.Constraint("DistanceY", -1, 1, 1, 2, Q("2.41006 mm")),
    Sketcher.Constraint("DistanceY", -1, 1, 2, 1, Q("3.38115 mm")),
    Sketcher.Constraint("DistanceX", 0, 2, 2, 3, Q("0.97509 mm")),
    Sketcher.Constraint("DistanceX", 0, 2, 2, 1, Q("0.97509 mm")),
])
pocket6 = body.newObject("PartDesign::Pocket", "Pocket005")
pocket6.Profile = sketch10
pocket6.Length = 0.9
pocket6.Reversed = True

sketch11 = body.newObject("Sketcher::SketchObject", "Sketch010")
sketch11.AttachmentSupport = (doc.getObject("XY_Plane"), [""])
sketch11.MapMode = "FlatFace"
add_polygon(sketch11, [(26.7, 3.4), (26.7, 0), (34.4, 0), (34.4, 3.4)])
sketch11.addConstraint([
    Sketcher.Constraint("Vertical", 0),
    Sketcher.Constraint("Horizontal", 1),
    Sketcher.Constraint("Vertical", 2),
    Sketcher.Constraint("Horizontal", 3),
    Sketcher.Constraint("PointOnObject", 0, 2, -1),
    Sketcher.Constraint("DistanceX", 1, 1, 1, 2, Q("7.7 mm")),
    Sketcher.Constraint("DistanceY", 0, 2, 0, 1, Q("3.35 mm")),
    Sketcher.Constraint("DistanceX", -1, 1, 0, 2, Q("26.68 mm")),
])
pocket7 = body.newObject("PartDesign::Pocket", "Pocket006")
pocket7.Profile = sketch11
pocket7.Length = 4
doc.recompute()

chamfer2 = body.newObject("PartDesign::Chamfer", "Chamfer001")
chamfer2.Base = (pocket7, edges_at(pocket7, [(34.38, 3.35, -2), (26.68, 3.35, -2)]))
chamfer2.Size = 0.5
doc.recompute()

fillet3 = body.newObject("PartDesign::Fillet", "Fillet002")
fillet3.Base = (chamfer2, edges_at(chamfer2, [
    (27.18, 3.35, -2),
    (33.88, 3.35, -2),
    (34.38, 2.85, -2),
    (26.68, 2.85, -2),
]))
fillet3.Radius = 0.4

doc.recompute()
